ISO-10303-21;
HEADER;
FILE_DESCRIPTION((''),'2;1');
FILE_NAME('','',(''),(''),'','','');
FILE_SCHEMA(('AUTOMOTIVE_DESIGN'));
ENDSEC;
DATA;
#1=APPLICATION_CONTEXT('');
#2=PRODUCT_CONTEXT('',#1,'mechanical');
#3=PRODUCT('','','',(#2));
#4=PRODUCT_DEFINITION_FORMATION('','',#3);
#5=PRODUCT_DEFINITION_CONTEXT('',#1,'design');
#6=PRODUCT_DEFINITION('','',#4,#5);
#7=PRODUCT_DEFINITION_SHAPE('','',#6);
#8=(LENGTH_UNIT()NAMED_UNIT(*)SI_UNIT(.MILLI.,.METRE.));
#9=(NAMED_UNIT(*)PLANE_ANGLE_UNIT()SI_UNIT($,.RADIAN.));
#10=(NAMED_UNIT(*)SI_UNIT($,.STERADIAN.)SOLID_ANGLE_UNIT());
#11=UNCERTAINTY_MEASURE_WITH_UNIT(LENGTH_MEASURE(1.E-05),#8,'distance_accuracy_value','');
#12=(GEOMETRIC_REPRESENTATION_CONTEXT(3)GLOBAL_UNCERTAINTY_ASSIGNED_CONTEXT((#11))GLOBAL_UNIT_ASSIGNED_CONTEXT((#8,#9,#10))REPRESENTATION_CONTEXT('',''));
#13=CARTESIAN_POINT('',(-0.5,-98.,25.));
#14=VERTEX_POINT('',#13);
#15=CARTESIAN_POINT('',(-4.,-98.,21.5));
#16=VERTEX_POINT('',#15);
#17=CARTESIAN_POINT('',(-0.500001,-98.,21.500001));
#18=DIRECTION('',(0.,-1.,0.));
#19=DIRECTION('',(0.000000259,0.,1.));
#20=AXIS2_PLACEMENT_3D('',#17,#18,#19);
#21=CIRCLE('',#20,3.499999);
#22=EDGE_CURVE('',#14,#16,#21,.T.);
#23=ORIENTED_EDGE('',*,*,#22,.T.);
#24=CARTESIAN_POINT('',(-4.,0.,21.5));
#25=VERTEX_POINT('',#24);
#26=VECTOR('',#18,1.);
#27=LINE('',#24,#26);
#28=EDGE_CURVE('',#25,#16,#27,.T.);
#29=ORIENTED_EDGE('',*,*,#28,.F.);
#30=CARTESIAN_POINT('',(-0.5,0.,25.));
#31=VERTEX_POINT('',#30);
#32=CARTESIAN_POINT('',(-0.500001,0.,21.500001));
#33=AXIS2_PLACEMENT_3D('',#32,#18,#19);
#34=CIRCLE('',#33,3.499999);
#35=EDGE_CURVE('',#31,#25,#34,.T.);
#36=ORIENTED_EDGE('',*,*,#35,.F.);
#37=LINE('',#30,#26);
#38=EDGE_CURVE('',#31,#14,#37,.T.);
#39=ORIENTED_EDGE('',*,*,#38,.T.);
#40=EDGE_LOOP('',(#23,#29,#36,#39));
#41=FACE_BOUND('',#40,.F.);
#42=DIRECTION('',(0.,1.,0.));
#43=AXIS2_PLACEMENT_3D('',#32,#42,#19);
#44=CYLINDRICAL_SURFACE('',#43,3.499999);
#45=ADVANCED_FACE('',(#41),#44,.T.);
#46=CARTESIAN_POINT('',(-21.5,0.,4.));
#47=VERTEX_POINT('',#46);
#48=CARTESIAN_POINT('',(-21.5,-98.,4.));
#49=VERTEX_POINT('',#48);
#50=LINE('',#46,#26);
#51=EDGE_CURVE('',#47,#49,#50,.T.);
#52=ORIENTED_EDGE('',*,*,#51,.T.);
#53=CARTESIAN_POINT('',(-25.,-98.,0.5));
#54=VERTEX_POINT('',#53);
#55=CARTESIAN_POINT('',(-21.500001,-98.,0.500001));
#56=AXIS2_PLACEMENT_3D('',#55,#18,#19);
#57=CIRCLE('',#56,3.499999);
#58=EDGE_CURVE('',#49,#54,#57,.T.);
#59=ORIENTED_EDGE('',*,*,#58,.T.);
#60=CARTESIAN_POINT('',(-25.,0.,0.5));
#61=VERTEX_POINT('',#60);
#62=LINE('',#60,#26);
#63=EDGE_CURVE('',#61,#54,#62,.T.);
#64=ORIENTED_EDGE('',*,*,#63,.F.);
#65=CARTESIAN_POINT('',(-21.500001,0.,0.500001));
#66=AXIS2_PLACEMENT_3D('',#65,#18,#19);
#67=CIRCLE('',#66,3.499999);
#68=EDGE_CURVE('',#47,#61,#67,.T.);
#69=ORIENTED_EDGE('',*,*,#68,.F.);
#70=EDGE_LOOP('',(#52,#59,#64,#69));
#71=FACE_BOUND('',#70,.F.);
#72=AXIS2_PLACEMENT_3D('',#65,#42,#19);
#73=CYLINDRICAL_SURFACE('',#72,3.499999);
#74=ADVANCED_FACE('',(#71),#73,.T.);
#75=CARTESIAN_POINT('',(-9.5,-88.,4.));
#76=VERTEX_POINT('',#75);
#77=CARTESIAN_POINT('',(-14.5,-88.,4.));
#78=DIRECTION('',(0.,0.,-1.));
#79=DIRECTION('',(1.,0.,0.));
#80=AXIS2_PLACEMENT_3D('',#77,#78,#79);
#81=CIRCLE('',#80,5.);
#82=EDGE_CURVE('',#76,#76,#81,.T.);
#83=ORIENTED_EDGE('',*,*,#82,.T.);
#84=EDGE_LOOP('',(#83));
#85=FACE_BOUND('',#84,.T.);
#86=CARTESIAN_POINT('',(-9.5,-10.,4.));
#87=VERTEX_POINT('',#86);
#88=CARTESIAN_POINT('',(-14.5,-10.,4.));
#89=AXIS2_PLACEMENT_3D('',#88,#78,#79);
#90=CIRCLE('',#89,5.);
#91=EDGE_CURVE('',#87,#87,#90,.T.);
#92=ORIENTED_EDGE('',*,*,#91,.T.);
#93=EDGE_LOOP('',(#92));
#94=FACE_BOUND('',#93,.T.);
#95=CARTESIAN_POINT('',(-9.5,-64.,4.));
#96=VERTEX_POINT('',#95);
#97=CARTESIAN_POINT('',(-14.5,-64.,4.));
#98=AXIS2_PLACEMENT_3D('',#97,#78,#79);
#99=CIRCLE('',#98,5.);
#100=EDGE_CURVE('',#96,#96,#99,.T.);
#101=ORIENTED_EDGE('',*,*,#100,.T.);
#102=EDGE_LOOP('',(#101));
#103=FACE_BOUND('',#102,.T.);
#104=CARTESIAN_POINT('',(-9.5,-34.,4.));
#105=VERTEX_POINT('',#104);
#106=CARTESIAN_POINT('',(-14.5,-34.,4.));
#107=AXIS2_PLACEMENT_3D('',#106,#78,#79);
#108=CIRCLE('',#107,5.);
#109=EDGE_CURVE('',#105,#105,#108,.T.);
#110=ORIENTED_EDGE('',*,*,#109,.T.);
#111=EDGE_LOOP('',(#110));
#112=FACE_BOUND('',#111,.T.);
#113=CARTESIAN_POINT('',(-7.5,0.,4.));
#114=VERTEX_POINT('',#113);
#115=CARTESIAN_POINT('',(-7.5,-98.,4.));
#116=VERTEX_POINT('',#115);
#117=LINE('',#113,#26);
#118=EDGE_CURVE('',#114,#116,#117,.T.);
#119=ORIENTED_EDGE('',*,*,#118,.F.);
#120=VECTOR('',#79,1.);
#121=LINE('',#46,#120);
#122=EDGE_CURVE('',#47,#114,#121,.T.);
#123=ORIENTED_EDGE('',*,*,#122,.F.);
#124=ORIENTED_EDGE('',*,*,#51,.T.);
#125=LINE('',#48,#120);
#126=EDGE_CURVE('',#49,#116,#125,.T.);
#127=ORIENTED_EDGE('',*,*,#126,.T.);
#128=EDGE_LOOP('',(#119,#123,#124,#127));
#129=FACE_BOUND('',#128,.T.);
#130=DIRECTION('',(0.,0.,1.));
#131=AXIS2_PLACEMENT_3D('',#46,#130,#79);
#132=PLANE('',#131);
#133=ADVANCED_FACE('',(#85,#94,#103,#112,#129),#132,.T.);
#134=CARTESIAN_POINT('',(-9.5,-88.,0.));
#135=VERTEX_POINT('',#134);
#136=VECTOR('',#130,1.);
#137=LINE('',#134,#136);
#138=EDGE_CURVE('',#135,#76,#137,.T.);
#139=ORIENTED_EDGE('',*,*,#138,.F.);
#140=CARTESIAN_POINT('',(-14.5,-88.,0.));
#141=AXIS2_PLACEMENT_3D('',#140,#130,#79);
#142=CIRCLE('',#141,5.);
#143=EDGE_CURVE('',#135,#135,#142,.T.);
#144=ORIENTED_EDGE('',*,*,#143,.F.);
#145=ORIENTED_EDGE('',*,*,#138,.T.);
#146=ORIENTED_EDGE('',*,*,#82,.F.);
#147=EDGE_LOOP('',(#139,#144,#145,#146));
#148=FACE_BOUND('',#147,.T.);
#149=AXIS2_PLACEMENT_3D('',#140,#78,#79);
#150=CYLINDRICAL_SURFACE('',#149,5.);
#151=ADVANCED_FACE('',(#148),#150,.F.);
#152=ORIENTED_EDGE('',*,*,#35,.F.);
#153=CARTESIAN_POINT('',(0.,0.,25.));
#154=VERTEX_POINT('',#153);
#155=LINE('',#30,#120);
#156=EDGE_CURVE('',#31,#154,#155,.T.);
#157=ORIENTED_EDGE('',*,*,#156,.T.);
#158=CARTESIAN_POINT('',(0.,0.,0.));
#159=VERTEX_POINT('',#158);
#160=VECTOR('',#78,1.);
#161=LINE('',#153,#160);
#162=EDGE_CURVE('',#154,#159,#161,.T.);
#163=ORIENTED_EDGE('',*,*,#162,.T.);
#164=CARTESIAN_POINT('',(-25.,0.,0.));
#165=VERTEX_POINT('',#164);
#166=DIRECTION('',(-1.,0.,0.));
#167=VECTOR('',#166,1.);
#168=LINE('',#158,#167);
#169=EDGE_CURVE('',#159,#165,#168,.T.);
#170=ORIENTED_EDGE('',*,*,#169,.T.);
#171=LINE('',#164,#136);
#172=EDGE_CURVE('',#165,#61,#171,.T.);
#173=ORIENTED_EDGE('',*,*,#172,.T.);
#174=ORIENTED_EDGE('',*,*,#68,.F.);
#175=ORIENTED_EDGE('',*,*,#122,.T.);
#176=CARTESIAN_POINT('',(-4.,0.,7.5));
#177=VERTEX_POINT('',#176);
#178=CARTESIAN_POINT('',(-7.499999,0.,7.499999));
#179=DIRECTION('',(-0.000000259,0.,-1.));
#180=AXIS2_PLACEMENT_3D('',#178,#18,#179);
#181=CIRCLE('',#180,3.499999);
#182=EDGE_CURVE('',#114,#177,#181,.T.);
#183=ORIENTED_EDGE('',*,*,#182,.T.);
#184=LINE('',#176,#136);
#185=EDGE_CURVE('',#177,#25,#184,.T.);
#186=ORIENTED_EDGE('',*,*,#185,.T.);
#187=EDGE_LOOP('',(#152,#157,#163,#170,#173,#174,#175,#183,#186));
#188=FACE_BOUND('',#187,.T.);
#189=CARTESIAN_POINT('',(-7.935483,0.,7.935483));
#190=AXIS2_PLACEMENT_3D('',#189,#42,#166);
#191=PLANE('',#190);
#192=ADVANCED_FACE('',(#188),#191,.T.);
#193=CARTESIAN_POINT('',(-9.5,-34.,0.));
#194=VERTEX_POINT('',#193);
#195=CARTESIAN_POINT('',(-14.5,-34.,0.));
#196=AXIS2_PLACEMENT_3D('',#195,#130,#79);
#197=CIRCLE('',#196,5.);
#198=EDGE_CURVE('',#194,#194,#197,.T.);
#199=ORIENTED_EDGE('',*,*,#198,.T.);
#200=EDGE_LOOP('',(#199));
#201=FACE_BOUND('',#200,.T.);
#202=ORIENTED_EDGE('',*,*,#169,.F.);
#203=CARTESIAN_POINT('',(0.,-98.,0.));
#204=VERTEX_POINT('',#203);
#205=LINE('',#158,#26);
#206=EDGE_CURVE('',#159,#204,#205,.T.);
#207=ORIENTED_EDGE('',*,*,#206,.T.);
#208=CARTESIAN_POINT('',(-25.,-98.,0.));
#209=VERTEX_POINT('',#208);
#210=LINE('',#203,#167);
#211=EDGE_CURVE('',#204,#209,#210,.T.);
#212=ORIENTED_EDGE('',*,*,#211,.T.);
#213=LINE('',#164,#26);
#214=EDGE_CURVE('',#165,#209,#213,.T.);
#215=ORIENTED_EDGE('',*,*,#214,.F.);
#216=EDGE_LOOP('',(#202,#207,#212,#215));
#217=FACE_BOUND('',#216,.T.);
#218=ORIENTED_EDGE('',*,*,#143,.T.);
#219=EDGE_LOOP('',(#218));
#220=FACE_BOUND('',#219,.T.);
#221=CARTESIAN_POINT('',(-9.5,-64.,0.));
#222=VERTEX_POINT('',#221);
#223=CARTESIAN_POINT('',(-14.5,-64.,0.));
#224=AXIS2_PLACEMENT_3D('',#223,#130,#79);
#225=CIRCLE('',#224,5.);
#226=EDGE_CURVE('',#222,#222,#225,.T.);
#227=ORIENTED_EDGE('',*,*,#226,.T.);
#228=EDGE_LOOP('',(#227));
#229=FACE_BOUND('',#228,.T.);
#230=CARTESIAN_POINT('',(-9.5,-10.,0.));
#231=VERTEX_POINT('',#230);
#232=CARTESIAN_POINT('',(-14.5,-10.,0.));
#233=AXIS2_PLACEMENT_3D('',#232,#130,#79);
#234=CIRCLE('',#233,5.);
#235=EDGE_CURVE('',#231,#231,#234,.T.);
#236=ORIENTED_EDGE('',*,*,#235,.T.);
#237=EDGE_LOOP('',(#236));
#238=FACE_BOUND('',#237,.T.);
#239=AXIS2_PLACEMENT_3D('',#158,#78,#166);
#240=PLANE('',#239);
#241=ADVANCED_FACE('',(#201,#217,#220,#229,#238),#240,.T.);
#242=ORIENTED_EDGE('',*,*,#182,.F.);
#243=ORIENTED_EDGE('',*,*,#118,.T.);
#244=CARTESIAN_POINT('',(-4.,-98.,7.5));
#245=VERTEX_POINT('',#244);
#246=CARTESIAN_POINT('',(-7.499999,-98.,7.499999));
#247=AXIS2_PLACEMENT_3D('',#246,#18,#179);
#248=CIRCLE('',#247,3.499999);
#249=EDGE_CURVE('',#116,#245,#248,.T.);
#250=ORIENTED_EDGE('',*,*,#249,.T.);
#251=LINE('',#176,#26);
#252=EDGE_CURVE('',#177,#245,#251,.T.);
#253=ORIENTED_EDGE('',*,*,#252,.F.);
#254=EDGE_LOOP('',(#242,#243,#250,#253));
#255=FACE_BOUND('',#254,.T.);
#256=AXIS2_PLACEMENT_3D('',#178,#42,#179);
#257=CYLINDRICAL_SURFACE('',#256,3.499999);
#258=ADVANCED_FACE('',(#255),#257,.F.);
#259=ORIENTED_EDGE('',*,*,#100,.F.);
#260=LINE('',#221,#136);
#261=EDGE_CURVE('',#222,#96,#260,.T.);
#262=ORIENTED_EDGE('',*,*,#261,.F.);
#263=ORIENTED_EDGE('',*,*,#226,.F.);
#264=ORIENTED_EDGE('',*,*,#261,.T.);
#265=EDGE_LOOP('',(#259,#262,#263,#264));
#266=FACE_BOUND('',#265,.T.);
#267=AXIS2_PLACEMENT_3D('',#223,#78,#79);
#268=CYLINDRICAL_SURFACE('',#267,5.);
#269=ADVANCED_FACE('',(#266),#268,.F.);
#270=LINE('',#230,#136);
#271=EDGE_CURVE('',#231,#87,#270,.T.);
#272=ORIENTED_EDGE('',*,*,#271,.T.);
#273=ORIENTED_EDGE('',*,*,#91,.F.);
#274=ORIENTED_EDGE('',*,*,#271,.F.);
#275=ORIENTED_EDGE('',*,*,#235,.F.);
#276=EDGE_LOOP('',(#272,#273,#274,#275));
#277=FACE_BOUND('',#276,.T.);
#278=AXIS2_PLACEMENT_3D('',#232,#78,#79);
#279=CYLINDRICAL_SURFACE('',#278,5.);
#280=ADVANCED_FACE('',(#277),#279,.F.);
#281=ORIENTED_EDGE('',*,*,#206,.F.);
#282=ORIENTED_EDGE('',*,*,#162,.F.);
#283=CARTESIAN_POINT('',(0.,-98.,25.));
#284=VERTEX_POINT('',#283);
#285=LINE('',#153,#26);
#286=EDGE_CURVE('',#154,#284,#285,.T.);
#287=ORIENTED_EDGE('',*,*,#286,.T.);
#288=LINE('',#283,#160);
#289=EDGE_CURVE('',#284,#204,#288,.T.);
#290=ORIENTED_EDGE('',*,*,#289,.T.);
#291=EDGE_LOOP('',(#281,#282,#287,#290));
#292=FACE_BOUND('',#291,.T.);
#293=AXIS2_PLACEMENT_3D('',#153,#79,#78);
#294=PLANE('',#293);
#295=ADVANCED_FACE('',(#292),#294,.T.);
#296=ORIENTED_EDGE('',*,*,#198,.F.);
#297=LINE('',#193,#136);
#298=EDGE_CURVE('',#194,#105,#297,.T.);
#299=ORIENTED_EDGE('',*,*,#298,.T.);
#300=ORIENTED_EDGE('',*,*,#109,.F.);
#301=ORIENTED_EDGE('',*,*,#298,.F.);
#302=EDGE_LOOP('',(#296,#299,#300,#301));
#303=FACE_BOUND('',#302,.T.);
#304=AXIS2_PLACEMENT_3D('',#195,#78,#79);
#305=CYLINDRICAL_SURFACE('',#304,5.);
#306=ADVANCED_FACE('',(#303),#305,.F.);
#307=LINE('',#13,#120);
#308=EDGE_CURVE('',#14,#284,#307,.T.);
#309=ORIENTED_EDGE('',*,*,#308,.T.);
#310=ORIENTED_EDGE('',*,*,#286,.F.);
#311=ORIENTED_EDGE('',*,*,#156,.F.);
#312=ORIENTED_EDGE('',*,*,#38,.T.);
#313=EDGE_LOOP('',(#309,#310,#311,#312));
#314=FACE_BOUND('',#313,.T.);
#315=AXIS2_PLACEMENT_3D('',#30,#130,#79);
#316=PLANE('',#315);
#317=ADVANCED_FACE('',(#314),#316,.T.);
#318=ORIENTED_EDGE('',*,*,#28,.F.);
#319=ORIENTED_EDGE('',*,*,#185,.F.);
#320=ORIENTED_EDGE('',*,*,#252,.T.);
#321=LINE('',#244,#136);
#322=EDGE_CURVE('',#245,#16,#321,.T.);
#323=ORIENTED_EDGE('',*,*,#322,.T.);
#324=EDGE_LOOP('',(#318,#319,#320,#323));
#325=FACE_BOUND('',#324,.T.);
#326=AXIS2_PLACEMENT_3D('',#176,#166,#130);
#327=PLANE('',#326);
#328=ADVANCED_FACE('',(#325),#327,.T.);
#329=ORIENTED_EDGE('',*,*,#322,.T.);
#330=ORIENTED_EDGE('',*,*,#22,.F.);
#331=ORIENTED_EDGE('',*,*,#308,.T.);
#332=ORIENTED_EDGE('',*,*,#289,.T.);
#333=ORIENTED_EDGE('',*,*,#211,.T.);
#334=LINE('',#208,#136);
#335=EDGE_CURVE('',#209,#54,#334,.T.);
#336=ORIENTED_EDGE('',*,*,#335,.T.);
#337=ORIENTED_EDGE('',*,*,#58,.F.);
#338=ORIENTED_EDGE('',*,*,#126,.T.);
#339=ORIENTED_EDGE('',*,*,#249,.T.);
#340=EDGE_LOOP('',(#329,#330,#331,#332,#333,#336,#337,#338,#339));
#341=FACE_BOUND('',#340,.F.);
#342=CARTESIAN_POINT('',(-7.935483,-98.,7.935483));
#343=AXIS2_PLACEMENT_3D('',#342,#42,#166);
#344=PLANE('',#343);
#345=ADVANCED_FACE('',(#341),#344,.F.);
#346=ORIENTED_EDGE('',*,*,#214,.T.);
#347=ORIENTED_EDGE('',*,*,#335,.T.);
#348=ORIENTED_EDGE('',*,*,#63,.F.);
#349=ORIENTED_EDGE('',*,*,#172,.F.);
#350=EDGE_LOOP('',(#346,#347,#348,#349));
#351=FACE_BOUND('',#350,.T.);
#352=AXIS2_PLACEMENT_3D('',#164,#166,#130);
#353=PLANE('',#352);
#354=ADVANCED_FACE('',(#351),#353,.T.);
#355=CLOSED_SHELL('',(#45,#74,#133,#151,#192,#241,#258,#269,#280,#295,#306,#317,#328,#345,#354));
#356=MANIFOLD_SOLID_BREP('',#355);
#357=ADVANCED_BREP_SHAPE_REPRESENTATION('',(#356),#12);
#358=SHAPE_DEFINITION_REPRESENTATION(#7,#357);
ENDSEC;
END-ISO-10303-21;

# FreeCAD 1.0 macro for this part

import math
import FreeCAD as App
import Part
import Sketcher

V = App.Vector

doc = App.newDocument("Part")
params = doc.addObject("Spreadsheet::Sheet", "Params")
for row, (alias, value) in enumerate([
    ("sketch1_radius", "3.499999 mm"),
    ("sketch1_width", "25 mm"),
    ("sketch1_width2", "14 mm"),
    ("pad1_length", "98 mm"),
    ("sketch2_diameter", "10 mm"),
], start=1):
    params.set(f"A{row}", alias)
    params.set(f"B{row}", "=" + value)
    params.setAlias(f"B{row}", alias)

body = doc.addObject("PartDesign::Body", "Body")

sketch1 = doc.addObject("Sketcher::SketchObject", "Sketch")
body.addObject(sketch1)
sketch1.AttachmentSupport = (doc.XZ_Plane, [""])
sketch1.MapMode = "FlatFace"
sketch1.addGeometry(Part.LineSegment(V(-25, 0, 0), V(0, 0, 0)), False)
sketch1.addGeometry(Part.LineSegment(V(0, 0, 0), V(0, 25, 0)), False)
sketch1.addGeometry(Part.LineSegment(V(0, 25, 0), V(-0.5, 25, 0)), False)
sketch1.addGeometry(Part.ArcOfCircle(Part.Circle(V(-0.5, 21.5, 0), V(0, 0, 1), 3.5), math.radians(90), math.radians(180)), False)
sketch1.addGeometry(Part.LineSegment(V(-4, 21.5, 0), V(-4, 7.5, 0)), False)
sketch1.addGeometry(Part.ArcOfCircle(Part.Circle(V(-7.5, 7.5, 0), V(0, 0, 1), 3.5), math.radians(-90), math.radians(0)), False)
sketch1.addGeometry(Part.LineSegment(V(-7.5, 4, 0), V(-21.5, 4, 0)), False)
sketch1.addGeometry(Part.ArcOfCircle(Part.Circle(V(-21.5, 0.5, 0), V(0, 0, 1), 3.5), math.radians(90), math.radians(180)), False)
sketch1.addGeometry(Part.LineSegment(V(-25, 0.5, 0), V(-25, 0, 0)), False)
sketch1.addConstraint(Sketcher.Constraint("Coincident", 0, 2, 1, 1))
sketch1.addConstraint(Sketcher.Constraint("Coincident", 1, 2, 2, 1))
sketch1.addConstraint(Sketcher.Constraint("Tangent", 2, 2, 3, 1))
sketch1.addConstraint(Sketcher.Constraint("Tangent", 3, 2, 4, 1))
sketch1.addConstraint(Sketcher.Constraint("Tangent", 4, 2, 5, 2))
sketch1.addConstraint(Sketcher.Constraint("Tangent", 5, 1, 6, 1))
sketch1.addConstraint(Sketcher.Constraint("Tangent", 6, 2, 7, 1))
sketch1.addConstraint(Sketcher.Constraint("Tangent", 7, 2, 8, 1))
sketch1.addConstraint(Sketcher.Constraint("Coincident", 8, 2, 0, 1))
sketch1.addConstraint(Sketcher.Constraint("Horizontal", 0))
sketch1.addConstraint(Sketcher.Constraint("Vertical", 1))
sketch1.addConstraint(Sketcher.Constraint("Horizontal", 2))
sketch1.addConstraint(Sketcher.Constraint("Vertical", 4))
sketch1.addConstraint(Sketcher.Constraint("Horizontal", 6))
sketch1.addConstraint(Sketcher.Constraint("Vertical", 8))
sketch1.addConstraint(Sketcher.Constraint("Coincident", 0, 2, -1, 1))
sketch1.addConstraint(Sketcher.Constraint("Equal", 3, 5))
sketch1.addConstraint(Sketcher.Constraint("Equal", 5, 7))
sketch1.addConstraint(Sketcher.Constraint("Equal", 0, 1))
sketch1.addConstraint(Sketcher.Constraint("Equal", 6, 4))
sketch1.addConstraint(Sketcher.Constraint("Radius", 3, 3.499999))
sketch1.addConstraint(Sketcher.Constraint("DistanceX", 0, 1, 0, 2, 25.0))
sketch1.addConstraint(Sketcher.Constraint("DistanceX", 6, 2, 6, 1, 14.0))
sketch1.setExpression("Constraints[20]", "Params.sketch1_radius")
sketch1.setExpression("Constraints[21]", "Params.sketch1_width")
sketch1.setExpression("Constraints[22]", "Params.sketch1_width2")
pad1 = doc.addObject("PartDesign::Pad", "Pad")
body.addObject(pad1)
pad1.Profile = sketch1
pad1.setExpression("Length", "Params.pad1_length")

sketch2 = doc.addObject("Sketcher::SketchObject", "Sketch001")
body.addObject(sketch2)
sketch2.AttachmentSupport = (doc.XY_Plane, [""])
sketch2.MapMode = "FlatFace"
sketch2.addGeometry(Part.Circle(V(-14, -10, 0), V(0, 0, 1), 5), False)
sketch2.addGeometry(Part.Circle(V(-14, -34, 0), V(0, 0, 1), 5), False)
sketch2.addGeometry(Part.Circle(V(-14, -88, 0), V(0, 0, 1), 5), False)
sketch2.addGeometry(Part.Circle(V(-14, -64, 0), V(0, 0, 1), 5), False)
sketch2.addConstraint(Sketcher.Constraint("Equal", 0, 1))
sketch2.addConstraint(Sketcher.Constraint("Equal", 1, 2))
sketch2.addConstraint(Sketcher.Constraint("Equal", 2, 3))
sketch2.addConstraint(Sketcher.Constraint("Vertical", 0, 3, 1, 3))
sketch2.addConstraint(Sketcher.Constraint("Vertical", 1, 3, 2, 3))
sketch2.addConstraint(Sketcher.Constraint("Vertical", 2, 3, 3, 3))
sketch2.addConstraint(Sketcher.Constraint("Diameter", 0, 10.0))
sketch2.addConstraint(Sketcher.Constraint("DistanceY", 0, 3, -1, 1, 10.0))
sketch2.addConstraint(Sketcher.Constraint("DistanceY", 1, 3, -1, 1, 34.0))
sketch2.addConstraint(Sketcher.Constraint("DistanceY", 2, 3, -1, 1, 88.0))
sketch2.addConstraint(Sketcher.Constraint("DistanceY", 3, 3, -1, 1, 64.0))
sketch2.addConstraint(Sketcher.Constraint("DistanceX", 0, 3, -1, 1, 14.5))
sketch2.setExpression("Constraints[6]", "Params.sketch2_diameter")
pocket1 = doc.addObject("PartDesign::Pocket", "Pocket")
body.addObject(pocket1)
pocket1.Profile = sketch2
pocket1.Type = "ThroughAll"
pocket1.Reversed = True

doc.recompute()
